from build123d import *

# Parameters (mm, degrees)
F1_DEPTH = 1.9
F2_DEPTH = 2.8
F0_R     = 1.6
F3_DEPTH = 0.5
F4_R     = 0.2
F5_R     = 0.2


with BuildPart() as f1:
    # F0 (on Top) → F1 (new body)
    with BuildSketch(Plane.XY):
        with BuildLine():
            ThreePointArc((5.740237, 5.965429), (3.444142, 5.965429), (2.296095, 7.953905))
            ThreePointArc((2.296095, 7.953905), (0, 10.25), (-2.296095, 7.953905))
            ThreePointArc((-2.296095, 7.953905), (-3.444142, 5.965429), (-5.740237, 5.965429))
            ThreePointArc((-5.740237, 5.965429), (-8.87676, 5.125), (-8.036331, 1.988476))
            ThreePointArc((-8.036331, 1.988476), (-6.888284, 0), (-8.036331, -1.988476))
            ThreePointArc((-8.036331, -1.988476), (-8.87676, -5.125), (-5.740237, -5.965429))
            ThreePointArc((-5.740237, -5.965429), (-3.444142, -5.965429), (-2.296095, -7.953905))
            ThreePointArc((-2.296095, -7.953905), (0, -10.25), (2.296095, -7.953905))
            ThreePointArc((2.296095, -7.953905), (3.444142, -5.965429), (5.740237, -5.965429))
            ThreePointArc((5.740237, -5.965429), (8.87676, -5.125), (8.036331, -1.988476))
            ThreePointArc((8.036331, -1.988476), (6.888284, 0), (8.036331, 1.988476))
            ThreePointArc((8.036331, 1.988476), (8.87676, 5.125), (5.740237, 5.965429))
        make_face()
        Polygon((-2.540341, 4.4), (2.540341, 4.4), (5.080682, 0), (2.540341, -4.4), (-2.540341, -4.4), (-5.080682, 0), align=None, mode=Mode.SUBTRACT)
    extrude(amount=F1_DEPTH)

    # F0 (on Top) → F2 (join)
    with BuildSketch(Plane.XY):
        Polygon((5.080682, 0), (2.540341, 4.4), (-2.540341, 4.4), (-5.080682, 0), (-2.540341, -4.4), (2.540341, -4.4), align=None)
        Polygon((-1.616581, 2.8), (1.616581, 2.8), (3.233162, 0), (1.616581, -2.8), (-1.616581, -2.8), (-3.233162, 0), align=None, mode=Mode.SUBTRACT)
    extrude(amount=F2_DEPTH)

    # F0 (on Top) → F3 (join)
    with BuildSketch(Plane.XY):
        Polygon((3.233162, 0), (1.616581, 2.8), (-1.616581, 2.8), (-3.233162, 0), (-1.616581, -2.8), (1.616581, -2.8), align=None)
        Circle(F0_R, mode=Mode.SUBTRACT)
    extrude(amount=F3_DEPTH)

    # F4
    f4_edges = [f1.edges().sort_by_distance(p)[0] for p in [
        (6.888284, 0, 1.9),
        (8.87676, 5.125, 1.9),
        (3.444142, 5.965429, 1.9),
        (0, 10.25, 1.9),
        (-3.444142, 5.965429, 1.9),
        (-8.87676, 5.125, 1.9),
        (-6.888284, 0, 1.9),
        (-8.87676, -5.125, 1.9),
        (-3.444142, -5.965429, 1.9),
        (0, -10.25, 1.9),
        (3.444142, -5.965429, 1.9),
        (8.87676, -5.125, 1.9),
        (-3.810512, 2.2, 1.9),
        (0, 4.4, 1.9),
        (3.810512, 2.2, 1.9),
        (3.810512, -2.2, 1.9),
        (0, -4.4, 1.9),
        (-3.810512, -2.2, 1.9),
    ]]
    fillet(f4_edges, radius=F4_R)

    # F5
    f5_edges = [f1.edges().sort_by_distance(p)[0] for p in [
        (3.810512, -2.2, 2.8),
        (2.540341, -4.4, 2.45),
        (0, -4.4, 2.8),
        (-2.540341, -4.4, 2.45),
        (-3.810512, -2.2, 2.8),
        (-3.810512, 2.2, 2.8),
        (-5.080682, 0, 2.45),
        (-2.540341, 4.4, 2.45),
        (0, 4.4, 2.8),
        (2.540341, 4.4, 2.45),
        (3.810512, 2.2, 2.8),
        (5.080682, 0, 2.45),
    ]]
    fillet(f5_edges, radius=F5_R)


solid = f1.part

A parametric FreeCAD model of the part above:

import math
import FreeCAD as App
import Part
import Sketcher
Q = App.Units.Quantity


def edges_at(feature, points):
    """Names of the edges that pass closest to the given points."""
    edges = feature.Shape.Edges
    near = lambda p: min(range(len(edges)), key=lambda i: edges[i].distToShape(Part.Vertex(*p))[0])
    return sorted({f"Edge{near(p) + 1}" for p in points})

doc = App.newDocument("Part")
params = doc.addObject("Spreadsheet::Sheet", "Params")
for row, (alias, value) in enumerate([
    ("pad1_length", "1.9 mm"),
    ("pad2_length", "2.8 mm"),
    ("sketch3_diameter", "3.2 mm"),
    ("pad3_length", "0.5 mm"),
    ("fillet_radius", "0.2 mm"),
    ("fillet2_radius", "0.2 mm"),
], start=1):
    params.set(f"A{row}", alias)
    params.set(f"B{row}", "=" + value)
    params.setAlias(f"B{row}", alias)

body = doc.addObject("PartDesign::Body", "Body")

sketch1 = doc.addObject("Sketcher::SketchObject", "Sketch")
body.addObject(sketch1)
sketch1.AttachmentSupport = (doc.XY_Plane, [""])
sketch1.MapMode = "FlatFace"
sketch1.addGeometry([
    Part.ArcOfCircle(Part.Circle(App.Vector(4.6, 8, 0), App.Vector(0, 0, 1), 2.3), math.radians(-180), math.radians(-60)),
    Part.ArcOfCircle(Part.Circle(App.Vector(0, 8, 0), App.Vector(0, 0, 1), 2.3), math.radians(0), math.radians(180)),
    Part.ArcOfCircle(Part.Circle(App.Vector(-4.6, 8, 0), App.Vector(0, 0, 1), 2.3), math.radians(-120), math.radians(0)),
    Part.ArcOfCircle(Part.Circle(App.Vector(-6.9, 4, 0), App.Vector(0, 0, 1), 2.3), math.radians(60), math.radians(240)),
    Part.ArcOfCircle(Part.Circle(App.Vector(-9.2, 0, 0), App.Vector(0, 0, 1), 2.3), math.radians(-60), math.radians(60)),
    Part.ArcOfCircle(Part.Circle(App.Vector(-6.9, -4, 0), App.Vector(0, 0, 1), 2.3), math.radians(120), math.radians(300)),
    Part.ArcOfCircle(Part.Circle(App.Vector(-4.6, -8, 0), App.Vector(0, 0, 1), 2.3), math.radians(0), math.radians(120)),
    Part.ArcOfCircle(Part.Circle(App.Vector(0, -8, 0), App.Vector(0, 0, 1), 2.3), math.radians(180), math.radians(360)),
    Part.ArcOfCircle(Part.Circle(App.Vector(4.6, -8, 0), App.Vector(0, 0, 1), 2.3), math.radians(60), math.radians(180)),
    Part.ArcOfCircle(Part.Circle(App.Vector(6.9, -4, 0), App.Vector(0, 0, 1), 2.3), math.radians(-120), math.radians(60)),
    Part.ArcOfCircle(Part.Circle(App.Vector(9.2, 0, 0), App.Vector(0, 0, 1), 2.3), math.radians(120), math.radians(240)),
    Part.ArcOfCircle(Part.Circle(App.Vector(6.9, 4, 0), App.Vector(0, 0, 1), 2.3), math.radians(-60), math.radians(120)),
    Part.LineSegment(App.Vector(-5.1, 0, 0), App.Vector(-2.5, 4.4, 0)),
    Part.LineSegment(App.Vector(-2.5, 4.4, 0), App.Vector(2.5, 4.4, 0)),
    Part.LineSegment(App.Vector(2.5, 4.4, 0), App.Vector(5.1, 0, 0)),
    Part.LineSegment(App.Vector(5.1, 0, 0), App.Vector(2.5, -4.4, 0)),
    Part.LineSegment(App.Vector(2.5, -4.4, 0), App.Vector(-2.5, -4.4, 0)),
    Part.LineSegment(App.Vector(-2.5, -4.4, 0), App.Vector(-5.1, 0, 0)),
], False)
sketch1.addConstraint([
    Sketcher.Constraint("Tangent", 0, 1, 1, 1),
    Sketcher.Constraint("Tangent", 1, 2, 2, 2),
    Sketcher.Constraint("Tangent", 2, 1, 3, 1),
    Sketcher.Constraint("Tangent", 3, 2, 4, 2),
    Sketcher.Constraint("Tangent", 4, 1, 5, 1),
    Sketcher.Constraint("Tangent", 5, 2, 6, 2),
    Sketcher.Constraint("Tangent", 6, 1, 7, 1),
    Sketcher.Constraint("Tangent", 7, 2, 8, 2),
    Sketcher.Constraint("Tangent", 8, 1, 9, 1),
    Sketcher.Constraint("Tangent", 9, 2, 10, 2),
    Sketcher.Constraint("Tangent", 10, 1, 11, 1),
    Sketcher.Constraint("Tangent", 11, 2, 0, 2),
    Sketcher.Constraint("Coincident", 12, 2, 13, 1),
    Sketcher.Constraint("Coincident", 13, 2, 14, 1),
    Sketcher.Constraint("Coincident", 14, 2, 15, 1),
    Sketcher.Constraint("Coincident", 15, 2, 16, 1),
    Sketcher.Constraint("Coincident", 16, 2, 17, 1),
    Sketcher.Constraint("Coincident", 17, 2, 12, 1),
    Sketcher.Constraint("Horizontal", 13),
    Sketcher.Constraint("Horizontal", 16),
    Sketcher.Constraint("Equal", 0, 1),
    Sketcher.Constraint("Equal", 1, 2),
    Sketcher.Constraint("Equal", 2, 3),
    Sketcher.Constraint("Equal", 3, 4),
    Sketcher.Constraint("Equal", 4, 5),
    Sketcher.Constraint("Equal", 5, 6),
    Sketcher.Constraint("Equal", 6, 7),
    Sketcher.Constraint("Equal", 7, 8),
    Sketcher.Constraint("Equal", 8, 9),
    Sketcher.Constraint("Equal", 9, 10),
    Sketcher.Constraint("Equal", 10, 11),
    Sketcher.Constraint("Symmetric", 0, 3, 6, 3, -1, 1),
    Sketcher.Constraint("Symmetric", 3, 3, 9, 3, -1, 1),
    Sketcher.Constraint("Symmetric", 12, 2, 15, 2, -1, 1),
    Sketcher.Constraint("Symmetric", 14, 2, 17, 2, -1, 1),
    Sketcher.Constraint("Symmetric", 0, 3, 2, 3, -2),
    Sketcher.Constraint("PointOnObject", 14, 2, -1),
    Sketcher.Constraint("Parallel", 14, 17),
    Sketcher.Constraint("Horizontal", 0, 3, 1, 3),
    Sketcher.Constraint("Horizontal", 6, 3, 7, 3),
    Sketcher.Constraint("Horizontal", 5, 3, 9, 3),
    Sketcher.Constraint("Horizontal", 3, 3, 11, 3),
    Sketcher.Constraint("Vertical", 13, 2, 15, 2),
    Sketcher.Constraint("Angle", 12, Q("60.000002 deg")),
    Sketcher.Constraint("DistanceY", -1, 1, 12, 2, Q("4.4 mm")),
    Sketcher.Constraint("Radius", 0, Q("2.296095 mm")),
    Sketcher.Constraint("DistanceX", 14, 2, 9, 3, Q("1.807602 mm")),
    Sketcher.Constraint("DistanceX", 13, 1, 13, 2, Q("5.080682 mm")),
    Sketcher.Constraint("DistanceX", 4, 3, -1, 1, Q("9.184378 mm")),
])
pad1 = doc.addObject("PartDesign::Pad", "Pad")
body.addObject(pad1)
pad1.Profile = sketch1
pad1.setExpression("Length", "Params.pad1_length")

sketch2 = doc.addObject("Sketcher::SketchObject", "Sketch001")
body.addObject(sketch2)
sketch2.AttachmentSupport = (doc.XY_Plane, [""])
sketch2.MapMode = "FlatFace"
sketch2.addGeometry([
    Part.LineSegment(App.Vector(5.1, 0, 0), App.Vector(2.5, 4.4, 0)),
    Part.LineSegment(App.Vector(2.5, 4.4, 0), App.Vector(-2.5, 4.4, 0)),
    Part.LineSegment(App.Vector(-2.5, 4.4, 0), App.Vector(-5.1, 0, 0)),
    Part.LineSegment(App.Vector(-5.1, 0, 0), App.Vector(-2.5, -4.4, 0)),
    Part.LineSegment(App.Vector(-2.5, -4.4, 0), App.Vector(2.5, -4.4, 0)),
    Part.LineSegment(App.Vector(2.5, -4.4, 0), App.Vector(5.1, 0, 0)),
    Part.LineSegment(App.Vector(-3.2, 0, 0), App.Vector(-1.6, 2.8, 0)),
    Part.LineSegment(App.Vector(-1.6, 2.8, 0), App.Vector(1.6, 2.8, 0)),
    Part.LineSegment(App.Vector(1.6, 2.8, 0), App.Vector(3.2, 0, 0)),
    Part.LineSegment(App.Vector(3.2, 0, 0), App.Vector(1.6, -2.8, 0)),
    Part.LineSegment(App.Vector(1.6, -2.8, 0), App.Vector(-1.6, -2.8, 0)),
    Part.LineSegment(App.Vector(-1.6, -2.8, 0), App.Vector(-3.2, 0, 0)),
], False)
sketch2.addConstraint([
    Sketcher.Constraint("Coincident", 0, 2, 1, 1),
    Sketcher.Constraint("Coincident", 1, 2, 2, 1),
    Sketcher.Constraint("Coincident", 2, 2, 3, 1),
    Sketcher.Constraint("Coincident", 3, 2, 4, 1),
    Sketcher.Constraint("Coincident", 4, 2, 5, 1),
    Sketcher.Constraint("Coincident", 5, 2, 0, 1),
    Sketcher.Constraint("Coincident", 6, 2, 7, 1),
    Sketcher.Constraint("Coincident", 7, 2, 8, 1),
    Sketcher.Constraint("Coincident", 8, 2, 9, 1),
    Sketcher.Constraint("Coincident", 9, 2, 10, 1),
    Sketcher.Constraint("Coincident", 10, 2, 11, 1),
    Sketcher.Constraint("Coincident", 11, 2, 6, 1),
    Sketcher.Constraint("Horizontal", 1),
    Sketcher.Constraint("Horizontal", 4),
    Sketcher.Constraint("Horizontal", 7),
    Sketcher.Constraint("Horizontal", 10),
    Sketcher.Constraint("Symmetric", 0, 2, 3, 2, -1, 1),
    Sketcher.Constraint("Symmetric", 2, 2, 5, 2, -1, 1),
    Sketcher.Constraint("Symmetric", 6, 2, 9, 2, -1, 1),
    Sketcher.Constraint("Symmetric", 8, 2, 11, 2, -1, 1),
    Sketcher.Constraint("PointOnObject", 2, 2, -1),
    Sketcher.Constraint("PointOnObject", 8, 2, -1),
    Sketcher.Constraint("Parallel", 2, 5),
    Sketcher.Constraint("Parallel", 5, 6),
    Sketcher.Constraint("Parallel", 3, 8),
    Sketcher.Constraint("Parallel", 8, 11),
    Sketcher.Constraint("Vertical", 1, 2, 3, 2),
    Sketcher.Constraint("Angle", 0, Q("119.999998 deg")),
    Sketcher.Constraint("DistanceY", -1, 1, 0, 2, Q("4.4 mm")),
    Sketcher.Constraint("DistanceY", -1, 1, 6, 2, Q("2.8 mm")),
    Sketcher.Constraint("DistanceX", 2, 2, 6, 2, Q("3.464101 mm")),
    Sketcher.Constraint("DistanceX", 1, 2, 1, 1, Q("5.080682 mm")),
])
pad2 = doc.addObject("PartDesign::Pad", "Pad001")
body.addObject(pad2)
pad2.Profile = sketch2
pad2.setExpression("Length", "Params.pad2_length")

sketch3 = doc.addObject("Sketcher::SketchObject", "Sketch002")
body.addObject(sketch3)
sketch3.AttachmentSupport = (doc.XY_Plane, [""])
sketch3.MapMode = "FlatFace"
sketch3.addGeometry([
    Part.LineSegment(App.Vector(3.2, 0, 0), App.Vector(1.6, 2.8, 0)),
    Part.LineSegment(App.Vector(1.6, 2.8, 0), App.Vector(-1.6, 2.8, 0)),
    Part.LineSegment(App.Vector(-1.6, 2.8, 0), App.Vector(-3.2, 0, 0)),
    Part.LineSegment(App.Vector(-3.2, 0, 0), App.Vector(-1.6, -2.8, 0)),
    Part.LineSegment(App.Vector(-1.6, -2.8, 0), App.Vector(1.6, -2.8, 0)),
    Part.LineSegment(App.Vector(1.6, -2.8, 0), App.Vector(3.2, 0, 0)),
    Part.Circle(App.Vector(0, 0, 0), App.Vector(0, 0, 1), 1.6),
], False)
sketch3.addConstraint([
    Sketcher.Constraint("Coincident", 0, 2, 1, 1),
    Sketcher.Constraint("Coincident", 1, 2, 2, 1),
    Sketcher.Constraint("Coincident", 2, 2, 3, 1),
    Sketcher.Constraint("Coincident", 3, 2, 4, 1),
    Sketcher.Constraint("Coincident", 4, 2, 5, 1),
    Sketcher.Constraint("Coincident", 5, 2, 0, 1),
    Sketcher.Constraint("Horizontal", 1),
    Sketcher.Constraint("Horizontal", 4),
    Sketcher.Constraint("Coincident", 6, 3, -1, 1),
    Sketcher.Constraint("Symmetric", 0, 2, 3, 2, -1, 1),
    Sketcher.Constraint("Symmetric", 2, 2, 5, 2, -1, 1),
    Sketcher.Constraint("PointOnObject", 2, 2, -1),
    Sketcher.Constraint("Parallel", 2, 5),
    Sketcher.Constraint("Vertical", 1, 2, 3, 2),
    Sketcher.Constraint("Diameter", 6, Q("3.2 mm")),
    Sketcher.Constraint("Angle", 0, Q("120.000004 deg")),
    Sketcher.Constraint("DistanceY", -1, 1, 0, 2, Q("2.8 mm")),
    Sketcher.Constraint("DistanceX", 1, 2, 1, 1, Q("3.233162 mm")),
])
sketch3.setExpression("Constraints[14]", "Params.sketch3_diameter")
pad3 = doc.addObject("PartDesign::Pad", "Pad002")
body.addObject(pad3)
pad3.Profile = sketch3
pad3.setExpression("Length", "Params.pad3_length")
doc.recompute()

fillet = doc.addObject("PartDesign::Fillet", "Fillet")
body.addObject(fillet)
fillet.Base = (pad3, edges_at(pad3, [
    (6.888, 0, 1.9),
    (8.877, 5.125, 1.9),
    (3.444, 5.965, 1.9),
    (0, 10.25, 1.9),
    (-3.444, 5.965, 1.9),
    (-8.877, 5.125, 1.9),
    (-6.888, 0, 1.9),
    (-8.877, -5.125, 1.9),
    (-3.444, -5.965, 1.9),
    (0, -10.25, 1.9),
    (3.444, -5.965, 1.9),
    (8.877, -5.125, 1.9),
    (-3.811, 2.2, 1.9),
    (0, 4.4, 1.9),
    (3.811, 2.2, 1.9),
    (3.811, -2.2, 1.9),
    (0, -4.4, 1.9),
    (-3.811, -2.2, 1.9),
]))
fillet.setExpression("Radius", "Params.fillet_radius")
doc.recompute()

fillet2 = doc.addObject("PartDesign::Fillet", "Fillet001")
body.addObject(fillet2)
fillet2.Base = (fillet, edges_at(fillet, [
    (3.811, -2.2, 2.8),
    (2.54, -4.4, 2.45),
    (0, -4.4, 2.8),
    (-2.54, -4.4, 2.45),
    (-3.811, -2.2, 2.8),
    (-3.811, 2.2, 2.8),
    (-5.081, 0, 2.45),
    (-2.54, 4.4, 2.45),
    (0, 4.4, 2.8),
    (2.54, 4.4, 2.45),
    (3.811, 2.2, 2.8),
    (5.081, 0, 2.45),
]))
fillet2.setExpression("Radius", "Params.fillet2_radius")

doc.recompute()
